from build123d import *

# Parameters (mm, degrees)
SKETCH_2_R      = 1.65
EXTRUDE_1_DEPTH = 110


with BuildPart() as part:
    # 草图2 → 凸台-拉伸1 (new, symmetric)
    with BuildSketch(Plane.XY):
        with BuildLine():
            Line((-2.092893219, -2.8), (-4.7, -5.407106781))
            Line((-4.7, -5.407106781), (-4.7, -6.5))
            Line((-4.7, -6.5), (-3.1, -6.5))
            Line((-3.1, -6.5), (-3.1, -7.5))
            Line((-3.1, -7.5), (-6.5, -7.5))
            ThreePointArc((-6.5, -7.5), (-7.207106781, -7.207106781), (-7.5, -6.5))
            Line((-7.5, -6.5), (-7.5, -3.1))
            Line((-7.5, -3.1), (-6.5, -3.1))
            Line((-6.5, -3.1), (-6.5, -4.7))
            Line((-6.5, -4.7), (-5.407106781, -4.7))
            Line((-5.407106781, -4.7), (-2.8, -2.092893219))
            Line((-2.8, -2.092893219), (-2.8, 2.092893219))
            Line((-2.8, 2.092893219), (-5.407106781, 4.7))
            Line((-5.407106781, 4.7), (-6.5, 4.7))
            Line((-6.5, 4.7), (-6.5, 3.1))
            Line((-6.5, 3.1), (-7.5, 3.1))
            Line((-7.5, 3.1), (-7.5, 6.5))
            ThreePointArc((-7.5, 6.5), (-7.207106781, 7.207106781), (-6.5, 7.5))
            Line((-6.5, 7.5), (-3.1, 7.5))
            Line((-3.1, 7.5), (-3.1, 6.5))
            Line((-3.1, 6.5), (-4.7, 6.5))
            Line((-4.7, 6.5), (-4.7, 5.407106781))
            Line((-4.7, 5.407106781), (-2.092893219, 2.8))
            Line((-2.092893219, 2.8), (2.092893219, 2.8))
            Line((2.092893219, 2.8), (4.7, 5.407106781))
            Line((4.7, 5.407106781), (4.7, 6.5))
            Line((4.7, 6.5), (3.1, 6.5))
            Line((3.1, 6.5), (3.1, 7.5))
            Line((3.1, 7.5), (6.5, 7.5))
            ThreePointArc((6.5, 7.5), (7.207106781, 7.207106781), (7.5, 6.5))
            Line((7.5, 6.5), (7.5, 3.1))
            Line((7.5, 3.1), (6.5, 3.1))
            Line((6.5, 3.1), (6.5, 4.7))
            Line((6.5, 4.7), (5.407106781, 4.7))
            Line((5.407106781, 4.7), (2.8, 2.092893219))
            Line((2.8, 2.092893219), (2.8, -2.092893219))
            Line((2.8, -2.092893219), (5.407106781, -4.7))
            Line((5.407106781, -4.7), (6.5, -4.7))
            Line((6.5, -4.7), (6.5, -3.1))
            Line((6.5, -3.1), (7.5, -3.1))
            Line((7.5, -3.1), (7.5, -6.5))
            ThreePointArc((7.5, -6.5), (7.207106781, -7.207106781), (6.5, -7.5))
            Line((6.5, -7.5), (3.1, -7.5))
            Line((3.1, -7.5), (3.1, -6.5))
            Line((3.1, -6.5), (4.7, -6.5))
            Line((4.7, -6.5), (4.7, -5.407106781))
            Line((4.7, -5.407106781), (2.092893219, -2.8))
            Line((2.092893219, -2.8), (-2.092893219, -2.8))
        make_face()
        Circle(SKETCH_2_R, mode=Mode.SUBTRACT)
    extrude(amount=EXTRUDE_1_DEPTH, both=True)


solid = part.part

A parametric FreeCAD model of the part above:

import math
import FreeCAD as App
import Part
import Sketcher

V = App.Vector
Q = App.Units.Quantity

doc = App.newDocument("Part")
body = doc.addObject("PartDesign::Body", "Body")

sketch1 = body.newObject("Sketcher::SketchObject", "Sketch")
sketch1.AttachmentSupport = (doc.getObject("XY_Plane"), [""])
sketch1.MapMode = "FlatFace"
sketch1.addGeometry([
    Part.LineSegment(V(-4.7, -5.4, 0), V(-2.1, -2.8, 0)),
    Part.LineSegment(V(-2.1, -2.8, 0), V(2.1, -2.8, 0)),
    Part.LineSegment(V(2.1, -2.8, 0), V(4.7, -5.4, 0)),
    Part.LineSegment(V(4.7, -5.4, 0), V(4.7, -6.5, 0)),
    Part.LineSegment(V(4.7, -6.5, 0), V(3.1, -6.5, 0)),
    Part.LineSegment(V(3.1, -6.5, 0), V(3.1, -7.5, 0)),
    Part.LineSegment(V(3.1, -7.5, 0), V(6.5, -7.5, 0)),
    Part.ArcOfCircle(Part.Circle(V(6.5, -6.5, 0), V(0, 0, 1), 1), math.radians(-90), math.radians(0)),
    Part.LineSegment(V(7.5, -6.5, 0), V(7.5, -3.1, 0)),
    Part.LineSegment(V(7.5, -3.1, 0), V(6.5, -3.1, 0)),
    Part.LineSegment(V(6.5, -3.1, 0), V(6.5, -4.7, 0)),
    Part.LineSegment(V(6.5, -4.7, 0), V(5.4, -4.7, 0)),
    Part.LineSegment(V(5.4, -4.7, 0), V(2.8, -2.1, 0)),
    Part.LineSegment(V(2.8, -2.1, 0), V(2.8, 2.1, 0)),
    Part.LineSegment(V(2.8, 2.1, 0), V(5.4, 4.7, 0)),
    Part.LineSegment(V(5.4, 4.7, 0), V(6.5, 4.7, 0)),
    Part.LineSegment(V(6.5, 4.7, 0), V(6.5, 3.1, 0)),
    Part.LineSegment(V(6.5, 3.1, 0), V(7.5, 3.1, 0)),
    Part.LineSegment(V(7.5, 3.1, 0), V(7.5, 6.5, 0)),
    Part.ArcOfCircle(Part.Circle(V(6.5, 6.5, 0), V(0, 0, 1), 1), math.radians(0), math.radians(90)),
    Part.LineSegment(V(6.5, 7.5, 0), V(3.1, 7.5, 0)),
    Part.LineSegment(V(3.1, 7.5, 0), V(3.1, 6.5, 0)),
    Part.LineSegment(V(3.1, 6.5, 0), V(4.7, 6.5, 0)),
    Part.LineSegment(V(4.7, 6.5, 0), V(4.7, 5.4, 0)),
    Part.LineSegment(V(4.7, 5.4, 0), V(2.1, 2.8, 0)),
    Part.LineSegment(V(2.1, 2.8, 0), V(-2.1, 2.8, 0)),
    Part.LineSegment(V(-2.1, 2.8, 0), V(-4.7, 5.4, 0)),
    Part.LineSegment(V(-4.7, 5.4, 0), V(-4.7, 6.5, 0)),
    Part.LineSegment(V(-4.7, 6.5, 0), V(-3.1, 6.5, 0)),
    Part.LineSegment(V(-3.1, 6.5, 0), V(-3.1, 7.5, 0)),
    Part.LineSegment(V(-3.1, 7.5, 0), V(-6.5, 7.5, 0)),
    Part.ArcOfCircle(Part.Circle(V(-6.5, 6.5, 0), V(0, 0, 1), 1), math.radians(90), math.radians(180)),
    Part.LineSegment(V(-7.5, 6.5, 0), V(-7.5, 3.1, 0)),
    Part.LineSegment(V(-7.5, 3.1, 0), V(-6.5, 3.1, 0)),
    Part.LineSegment(V(-6.5, 3.1, 0), V(-6.5, 4.7, 0)),
    Part.LineSegment(V(-6.5, 4.7, 0), V(-5.4, 4.7, 0)),
    Part.LineSegment(V(-5.4, 4.7, 0), V(-2.8, 2.1, 0)),
    Part.LineSegment(V(-2.8, 2.1, 0), V(-2.8, -2.1, 0)),
    Part.LineSegment(V(-2.8, -2.1, 0), V(-5.4, -4.7, 0)),
    Part.LineSegment(V(-5.4, -4.7, 0), V(-6.5, -4.7, 0)),
    Part.LineSegment(V(-6.5, -4.7, 0), V(-6.5, -3.1, 0)),
    Part.LineSegment(V(-6.5, -3.1, 0), V(-7.5, -3.1, 0)),
    Part.LineSegment(V(-7.5, -3.1, 0), V(-7.5, -6.5, 0)),
    Part.ArcOfCircle(Part.Circle(V(-6.5, -6.5, 0), V(0, 0, 1), 1), math.radians(-180), math.radians(-90)),
    Part.LineSegment(V(-6.5, -7.5, 0), V(-3.1, -7.5, 0)),
    Part.LineSegment(V(-3.1, -7.5, 0), V(-3.1, -6.5, 0)),
    Part.LineSegment(V(-3.1, -6.5, 0), V(-4.7, -6.5, 0)),
    Part.LineSegment(V(-4.7, -6.5, 0), V(-4.7, -5.4, 0)),
    Part.Circle(V(0, 0, 0), V(0, 0, 1), 1.6),
], False)
sketch1.addConstraint([
    Sketcher.Constraint("Coincident", 0, 2, 1, 1),
    Sketcher.Constraint("Coincident", 1, 2, 2, 1),
    Sketcher.Constraint("Coincident", 2, 2, 3, 1),
    Sketcher.Constraint("Coincident", 3, 2, 4, 1),
    Sketcher.Constraint("Coincident", 4, 2, 5, 1),
    Sketcher.Constraint("Coincident", 5, 2, 6, 1),
    Sketcher.Constraint("Tangent", 6, 2, 7, 1),
    Sketcher.Constraint("Tangent", 7, 2, 8, 1),
    Sketcher.Constraint("Coincident", 8, 2, 9, 1),
    Sketcher.Constraint("Coincident", 9, 2, 10, 1),
    Sketcher.Constraint("Coincident", 10, 2, 11, 1),
    Sketcher.Constraint("Coincident", 11, 2, 12, 1),
    Sketcher.Constraint("Coincident", 12, 2, 13, 1),
    Sketcher.Constraint("Coincident", 13, 2, 14, 1),
    Sketcher.Constraint("Coincident", 14, 2, 15, 1),
    Sketcher.Constraint("Coincident", 15, 2, 16, 1),
    Sketcher.Constraint("Coincident", 16, 2, 17, 1),
    Sketcher.Constraint("Coincident", 17, 2, 18, 1),
    Sketcher.Constraint("Tangent", 18, 2, 19, 1),
    Sketcher.Constraint("Tangent", 19, 2, 20, 1),
    Sketcher.Constraint("Coincident", 20, 2, 21, 1),
    Sketcher.Constraint("Coincident", 21, 2, 22, 1),
    Sketcher.Constraint("Coincident", 22, 2, 23, 1),
    Sketcher.Constraint("Coincident", 23, 2, 24, 1),
    Sketcher.Constraint("Coincident", 24, 2, 25, 1),
    Sketcher.Constraint("Coincident", 25, 2, 26, 1),
    Sketcher.Constraint("Coincident", 26, 2, 27, 1),
    Sketcher.Constraint("Coincident", 27, 2, 28, 1),
    Sketcher.Constraint("Coincident", 28, 2, 29, 1),
    Sketcher.Constraint("Coincident", 29, 2, 30, 1),
    Sketcher.Constraint("Tangent", 30, 2, 31, 1),
    Sketcher.Constraint("Tangent", 31, 2, 32, 1),
    Sketcher.Constraint("Coincident", 32, 2, 33, 1),
    Sketcher.Constraint("Coincident", 33, 2, 34, 1),
    Sketcher.Constraint("Coincident", 34, 2, 35, 1),
    Sketcher.Constraint("Coincident", 35, 2, 36, 1),
    Sketcher.Constraint("Coincident", 36, 2, 37, 1),
    Sketcher.Constraint("Coincident", 37, 2, 38, 1),
    Sketcher.Constraint("Coincident", 38, 2, 39, 1),
    Sketcher.Constraint("Coincident", 39, 2, 40, 1),
    Sketcher.Constraint("Coincident", 40, 2, 41, 1),
    Sketcher.Constraint("Coincident", 41, 2, 42, 1),
    Sketcher.Constraint("Tangent", 42, 2, 43, 1),
    Sketcher.Constraint("Tangent", 43, 2, 44, 1),
    Sketcher.Constraint("Coincident", 44, 2, 45, 1),
    Sketcher.Constraint("Coincident", 45, 2, 46, 1),
    Sketcher.Constraint("Coincident", 46, 2, 47, 1),
    Sketcher.Constraint("Coincident", 47, 2, 0, 1),
    Sketcher.Constraint("Horizontal", 1),
    Sketcher.Constraint("Vertical", 3),
    Sketcher.Constraint("Horizontal", 4),
    Sketcher.Constraint("Vertical", 5),
    Sketcher.Constraint("Horizontal", 6),
    Sketcher.Constraint("Vertical", 8),
    Sketcher.Constraint("Horizontal", 9),
    Sketcher.Constraint("Vertical", 10),
    Sketcher.Constraint("Horizontal", 11),
    Sketcher.Constraint("Vertical", 13),
    Sketcher.Constraint("Horizontal", 15),
    Sketcher.Constraint("Vertical", 16),
    Sketcher.Constraint("Horizontal", 17),
    Sketcher.Constraint("Vertical", 18),
    Sketcher.Constraint("Horizontal", 20),
    Sketcher.Constraint("Vertical", 21),
    Sketcher.Constraint("Horizontal", 22),
    Sketcher.Constraint("Vertical", 23),
    Sketcher.Constraint("Horizontal", 25),
    Sketcher.Constraint("Vertical", 27),
    Sketcher.Constraint("Horizontal", 28),
    Sketcher.Constraint("Vertical", 29),
    Sketcher.Constraint("Horizontal", 30),
    Sketcher.Constraint("Vertical", 32),
    Sketcher.Constraint("Horizontal", 33),
    Sketcher.Constraint("Vertical", 34),
    Sketcher.Constraint("Horizontal", 35),
    Sketcher.Constraint("Vertical", 37),
    Sketcher.Constraint("Horizontal", 39),
    Sketcher.Constraint("Vertical", 40),
    Sketcher.Constraint("Horizontal", 41),
    Sketcher.Constraint("Vertical", 42),
    Sketcher.Constraint("Horizontal", 44),
    Sketcher.Constraint("Vertical", 45),
    Sketcher.Constraint("Horizontal", 46),
    Sketcher.Constraint("Vertical", 47),
    Sketcher.Constraint("Coincident", 48, 3, -1, 1),
    Sketcher.Constraint("Equal", 7, 19),
    Sketcher.Constraint("Equal", 19, 31),
    Sketcher.Constraint("Equal", 31, 43),
    Sketcher.Constraint("Symmetric", 7, 3, 31, 3, -1, 1),
    Sketcher.Constraint("Symmetric", 19, 3, 43, 3, -1, 1),
    Sketcher.Constraint("Symmetric", 0, 2, 24, 2, -1, 1),
    Sketcher.Constraint("Symmetric", 2, 2, 26, 2, -1, 1),
    Sketcher.Constraint("Symmetric", 4, 2, 28, 2, -1, 1),
    Sketcher.Constraint("Symmetric", 9, 2, 33, 2, -1, 1),
    Sketcher.Constraint("Symmetric", 11, 2, 35, 2, -1, 1),
    Sketcher.Constraint("Symmetric", 12, 2, 36, 2, -1, 1),
    Sketcher.Constraint("Symmetric", 14, 2, 38, 2, -1, 1),
    Sketcher.Constraint("Symmetric", 16, 2, 40, 2, -1, 1),
    Sketcher.Constraint("Symmetric", 21, 2, 45, 2, -1, 1),
    Sketcher.Constraint("Symmetric", 23, 2, 47, 2, -1, 1),
    Sketcher.Constraint("Symmetric", 19, 3, 31, 3, -2),
    Sketcher.Constraint("Symmetric", 23, 2, 26, 2, -2),
    Sketcher.Constraint("Symmetric", 21, 2, 28, 2, -2),
    Sketcher.Constraint("Symmetric", 16, 2, 33, 2, -2),
    Sketcher.Constraint("Symmetric", 14, 2, 35, 2, -2),
    Sketcher.Constraint("Perpendicular", 0, 2),
    Sketcher.Constraint("Parallel", 2, 12),
    Sketcher.Constraint("Perpendicular", 12, 14),
    Sketcher.Constraint("Perpendicular", 24, 26),
    Sketcher.Constraint("Perpendicular", 36, 38),
    Sketcher.Constraint("Horizontal", 43, 3, 3, 2),
    Sketcher.Constraint("Horizontal", 13, 2, 36, 2),
    Sketcher.Constraint("Vertical", 6, 2, 9, 2),
    Sketcher.Constraint("Equal", 39, 3),
    Sketcher.Constraint("Equal", 44, 8),
    Sketcher.Constraint("Equal", 46, 10),
    Sketcher.Constraint("Equal", 25, 13),
    Sketcher.Constraint("Equal", 2, 12),
    Sketcher.Constraint("Radius", 7, Q("1 mm")),
    Sketcher.Constraint("Diameter", 48, Q("3.3 mm")),
    Sketcher.Constraint("DistanceX", 4, 2, 4, 1, Q("1.6 mm")),
    Sketcher.Constraint("DistanceX", 6, 1, 6, 2, Q("3.4 mm")),
    Sketcher.Constraint("DistanceY", 7, 3, 19, 3, Q("13 mm")),
    Sketcher.Constraint("DistanceY", 0, 2, -1, 1, Q("2.8 mm")),
    Sketcher.Constraint("DistanceX", 1, 1, 1, 2, Q("4.185786 mm")),
])
pad1 = body.newObject("PartDesign::Pad", "Pad")
pad1.Profile = sketch1
pad1.Length = 220
pad1.Midplane = True

doc.recompute()
